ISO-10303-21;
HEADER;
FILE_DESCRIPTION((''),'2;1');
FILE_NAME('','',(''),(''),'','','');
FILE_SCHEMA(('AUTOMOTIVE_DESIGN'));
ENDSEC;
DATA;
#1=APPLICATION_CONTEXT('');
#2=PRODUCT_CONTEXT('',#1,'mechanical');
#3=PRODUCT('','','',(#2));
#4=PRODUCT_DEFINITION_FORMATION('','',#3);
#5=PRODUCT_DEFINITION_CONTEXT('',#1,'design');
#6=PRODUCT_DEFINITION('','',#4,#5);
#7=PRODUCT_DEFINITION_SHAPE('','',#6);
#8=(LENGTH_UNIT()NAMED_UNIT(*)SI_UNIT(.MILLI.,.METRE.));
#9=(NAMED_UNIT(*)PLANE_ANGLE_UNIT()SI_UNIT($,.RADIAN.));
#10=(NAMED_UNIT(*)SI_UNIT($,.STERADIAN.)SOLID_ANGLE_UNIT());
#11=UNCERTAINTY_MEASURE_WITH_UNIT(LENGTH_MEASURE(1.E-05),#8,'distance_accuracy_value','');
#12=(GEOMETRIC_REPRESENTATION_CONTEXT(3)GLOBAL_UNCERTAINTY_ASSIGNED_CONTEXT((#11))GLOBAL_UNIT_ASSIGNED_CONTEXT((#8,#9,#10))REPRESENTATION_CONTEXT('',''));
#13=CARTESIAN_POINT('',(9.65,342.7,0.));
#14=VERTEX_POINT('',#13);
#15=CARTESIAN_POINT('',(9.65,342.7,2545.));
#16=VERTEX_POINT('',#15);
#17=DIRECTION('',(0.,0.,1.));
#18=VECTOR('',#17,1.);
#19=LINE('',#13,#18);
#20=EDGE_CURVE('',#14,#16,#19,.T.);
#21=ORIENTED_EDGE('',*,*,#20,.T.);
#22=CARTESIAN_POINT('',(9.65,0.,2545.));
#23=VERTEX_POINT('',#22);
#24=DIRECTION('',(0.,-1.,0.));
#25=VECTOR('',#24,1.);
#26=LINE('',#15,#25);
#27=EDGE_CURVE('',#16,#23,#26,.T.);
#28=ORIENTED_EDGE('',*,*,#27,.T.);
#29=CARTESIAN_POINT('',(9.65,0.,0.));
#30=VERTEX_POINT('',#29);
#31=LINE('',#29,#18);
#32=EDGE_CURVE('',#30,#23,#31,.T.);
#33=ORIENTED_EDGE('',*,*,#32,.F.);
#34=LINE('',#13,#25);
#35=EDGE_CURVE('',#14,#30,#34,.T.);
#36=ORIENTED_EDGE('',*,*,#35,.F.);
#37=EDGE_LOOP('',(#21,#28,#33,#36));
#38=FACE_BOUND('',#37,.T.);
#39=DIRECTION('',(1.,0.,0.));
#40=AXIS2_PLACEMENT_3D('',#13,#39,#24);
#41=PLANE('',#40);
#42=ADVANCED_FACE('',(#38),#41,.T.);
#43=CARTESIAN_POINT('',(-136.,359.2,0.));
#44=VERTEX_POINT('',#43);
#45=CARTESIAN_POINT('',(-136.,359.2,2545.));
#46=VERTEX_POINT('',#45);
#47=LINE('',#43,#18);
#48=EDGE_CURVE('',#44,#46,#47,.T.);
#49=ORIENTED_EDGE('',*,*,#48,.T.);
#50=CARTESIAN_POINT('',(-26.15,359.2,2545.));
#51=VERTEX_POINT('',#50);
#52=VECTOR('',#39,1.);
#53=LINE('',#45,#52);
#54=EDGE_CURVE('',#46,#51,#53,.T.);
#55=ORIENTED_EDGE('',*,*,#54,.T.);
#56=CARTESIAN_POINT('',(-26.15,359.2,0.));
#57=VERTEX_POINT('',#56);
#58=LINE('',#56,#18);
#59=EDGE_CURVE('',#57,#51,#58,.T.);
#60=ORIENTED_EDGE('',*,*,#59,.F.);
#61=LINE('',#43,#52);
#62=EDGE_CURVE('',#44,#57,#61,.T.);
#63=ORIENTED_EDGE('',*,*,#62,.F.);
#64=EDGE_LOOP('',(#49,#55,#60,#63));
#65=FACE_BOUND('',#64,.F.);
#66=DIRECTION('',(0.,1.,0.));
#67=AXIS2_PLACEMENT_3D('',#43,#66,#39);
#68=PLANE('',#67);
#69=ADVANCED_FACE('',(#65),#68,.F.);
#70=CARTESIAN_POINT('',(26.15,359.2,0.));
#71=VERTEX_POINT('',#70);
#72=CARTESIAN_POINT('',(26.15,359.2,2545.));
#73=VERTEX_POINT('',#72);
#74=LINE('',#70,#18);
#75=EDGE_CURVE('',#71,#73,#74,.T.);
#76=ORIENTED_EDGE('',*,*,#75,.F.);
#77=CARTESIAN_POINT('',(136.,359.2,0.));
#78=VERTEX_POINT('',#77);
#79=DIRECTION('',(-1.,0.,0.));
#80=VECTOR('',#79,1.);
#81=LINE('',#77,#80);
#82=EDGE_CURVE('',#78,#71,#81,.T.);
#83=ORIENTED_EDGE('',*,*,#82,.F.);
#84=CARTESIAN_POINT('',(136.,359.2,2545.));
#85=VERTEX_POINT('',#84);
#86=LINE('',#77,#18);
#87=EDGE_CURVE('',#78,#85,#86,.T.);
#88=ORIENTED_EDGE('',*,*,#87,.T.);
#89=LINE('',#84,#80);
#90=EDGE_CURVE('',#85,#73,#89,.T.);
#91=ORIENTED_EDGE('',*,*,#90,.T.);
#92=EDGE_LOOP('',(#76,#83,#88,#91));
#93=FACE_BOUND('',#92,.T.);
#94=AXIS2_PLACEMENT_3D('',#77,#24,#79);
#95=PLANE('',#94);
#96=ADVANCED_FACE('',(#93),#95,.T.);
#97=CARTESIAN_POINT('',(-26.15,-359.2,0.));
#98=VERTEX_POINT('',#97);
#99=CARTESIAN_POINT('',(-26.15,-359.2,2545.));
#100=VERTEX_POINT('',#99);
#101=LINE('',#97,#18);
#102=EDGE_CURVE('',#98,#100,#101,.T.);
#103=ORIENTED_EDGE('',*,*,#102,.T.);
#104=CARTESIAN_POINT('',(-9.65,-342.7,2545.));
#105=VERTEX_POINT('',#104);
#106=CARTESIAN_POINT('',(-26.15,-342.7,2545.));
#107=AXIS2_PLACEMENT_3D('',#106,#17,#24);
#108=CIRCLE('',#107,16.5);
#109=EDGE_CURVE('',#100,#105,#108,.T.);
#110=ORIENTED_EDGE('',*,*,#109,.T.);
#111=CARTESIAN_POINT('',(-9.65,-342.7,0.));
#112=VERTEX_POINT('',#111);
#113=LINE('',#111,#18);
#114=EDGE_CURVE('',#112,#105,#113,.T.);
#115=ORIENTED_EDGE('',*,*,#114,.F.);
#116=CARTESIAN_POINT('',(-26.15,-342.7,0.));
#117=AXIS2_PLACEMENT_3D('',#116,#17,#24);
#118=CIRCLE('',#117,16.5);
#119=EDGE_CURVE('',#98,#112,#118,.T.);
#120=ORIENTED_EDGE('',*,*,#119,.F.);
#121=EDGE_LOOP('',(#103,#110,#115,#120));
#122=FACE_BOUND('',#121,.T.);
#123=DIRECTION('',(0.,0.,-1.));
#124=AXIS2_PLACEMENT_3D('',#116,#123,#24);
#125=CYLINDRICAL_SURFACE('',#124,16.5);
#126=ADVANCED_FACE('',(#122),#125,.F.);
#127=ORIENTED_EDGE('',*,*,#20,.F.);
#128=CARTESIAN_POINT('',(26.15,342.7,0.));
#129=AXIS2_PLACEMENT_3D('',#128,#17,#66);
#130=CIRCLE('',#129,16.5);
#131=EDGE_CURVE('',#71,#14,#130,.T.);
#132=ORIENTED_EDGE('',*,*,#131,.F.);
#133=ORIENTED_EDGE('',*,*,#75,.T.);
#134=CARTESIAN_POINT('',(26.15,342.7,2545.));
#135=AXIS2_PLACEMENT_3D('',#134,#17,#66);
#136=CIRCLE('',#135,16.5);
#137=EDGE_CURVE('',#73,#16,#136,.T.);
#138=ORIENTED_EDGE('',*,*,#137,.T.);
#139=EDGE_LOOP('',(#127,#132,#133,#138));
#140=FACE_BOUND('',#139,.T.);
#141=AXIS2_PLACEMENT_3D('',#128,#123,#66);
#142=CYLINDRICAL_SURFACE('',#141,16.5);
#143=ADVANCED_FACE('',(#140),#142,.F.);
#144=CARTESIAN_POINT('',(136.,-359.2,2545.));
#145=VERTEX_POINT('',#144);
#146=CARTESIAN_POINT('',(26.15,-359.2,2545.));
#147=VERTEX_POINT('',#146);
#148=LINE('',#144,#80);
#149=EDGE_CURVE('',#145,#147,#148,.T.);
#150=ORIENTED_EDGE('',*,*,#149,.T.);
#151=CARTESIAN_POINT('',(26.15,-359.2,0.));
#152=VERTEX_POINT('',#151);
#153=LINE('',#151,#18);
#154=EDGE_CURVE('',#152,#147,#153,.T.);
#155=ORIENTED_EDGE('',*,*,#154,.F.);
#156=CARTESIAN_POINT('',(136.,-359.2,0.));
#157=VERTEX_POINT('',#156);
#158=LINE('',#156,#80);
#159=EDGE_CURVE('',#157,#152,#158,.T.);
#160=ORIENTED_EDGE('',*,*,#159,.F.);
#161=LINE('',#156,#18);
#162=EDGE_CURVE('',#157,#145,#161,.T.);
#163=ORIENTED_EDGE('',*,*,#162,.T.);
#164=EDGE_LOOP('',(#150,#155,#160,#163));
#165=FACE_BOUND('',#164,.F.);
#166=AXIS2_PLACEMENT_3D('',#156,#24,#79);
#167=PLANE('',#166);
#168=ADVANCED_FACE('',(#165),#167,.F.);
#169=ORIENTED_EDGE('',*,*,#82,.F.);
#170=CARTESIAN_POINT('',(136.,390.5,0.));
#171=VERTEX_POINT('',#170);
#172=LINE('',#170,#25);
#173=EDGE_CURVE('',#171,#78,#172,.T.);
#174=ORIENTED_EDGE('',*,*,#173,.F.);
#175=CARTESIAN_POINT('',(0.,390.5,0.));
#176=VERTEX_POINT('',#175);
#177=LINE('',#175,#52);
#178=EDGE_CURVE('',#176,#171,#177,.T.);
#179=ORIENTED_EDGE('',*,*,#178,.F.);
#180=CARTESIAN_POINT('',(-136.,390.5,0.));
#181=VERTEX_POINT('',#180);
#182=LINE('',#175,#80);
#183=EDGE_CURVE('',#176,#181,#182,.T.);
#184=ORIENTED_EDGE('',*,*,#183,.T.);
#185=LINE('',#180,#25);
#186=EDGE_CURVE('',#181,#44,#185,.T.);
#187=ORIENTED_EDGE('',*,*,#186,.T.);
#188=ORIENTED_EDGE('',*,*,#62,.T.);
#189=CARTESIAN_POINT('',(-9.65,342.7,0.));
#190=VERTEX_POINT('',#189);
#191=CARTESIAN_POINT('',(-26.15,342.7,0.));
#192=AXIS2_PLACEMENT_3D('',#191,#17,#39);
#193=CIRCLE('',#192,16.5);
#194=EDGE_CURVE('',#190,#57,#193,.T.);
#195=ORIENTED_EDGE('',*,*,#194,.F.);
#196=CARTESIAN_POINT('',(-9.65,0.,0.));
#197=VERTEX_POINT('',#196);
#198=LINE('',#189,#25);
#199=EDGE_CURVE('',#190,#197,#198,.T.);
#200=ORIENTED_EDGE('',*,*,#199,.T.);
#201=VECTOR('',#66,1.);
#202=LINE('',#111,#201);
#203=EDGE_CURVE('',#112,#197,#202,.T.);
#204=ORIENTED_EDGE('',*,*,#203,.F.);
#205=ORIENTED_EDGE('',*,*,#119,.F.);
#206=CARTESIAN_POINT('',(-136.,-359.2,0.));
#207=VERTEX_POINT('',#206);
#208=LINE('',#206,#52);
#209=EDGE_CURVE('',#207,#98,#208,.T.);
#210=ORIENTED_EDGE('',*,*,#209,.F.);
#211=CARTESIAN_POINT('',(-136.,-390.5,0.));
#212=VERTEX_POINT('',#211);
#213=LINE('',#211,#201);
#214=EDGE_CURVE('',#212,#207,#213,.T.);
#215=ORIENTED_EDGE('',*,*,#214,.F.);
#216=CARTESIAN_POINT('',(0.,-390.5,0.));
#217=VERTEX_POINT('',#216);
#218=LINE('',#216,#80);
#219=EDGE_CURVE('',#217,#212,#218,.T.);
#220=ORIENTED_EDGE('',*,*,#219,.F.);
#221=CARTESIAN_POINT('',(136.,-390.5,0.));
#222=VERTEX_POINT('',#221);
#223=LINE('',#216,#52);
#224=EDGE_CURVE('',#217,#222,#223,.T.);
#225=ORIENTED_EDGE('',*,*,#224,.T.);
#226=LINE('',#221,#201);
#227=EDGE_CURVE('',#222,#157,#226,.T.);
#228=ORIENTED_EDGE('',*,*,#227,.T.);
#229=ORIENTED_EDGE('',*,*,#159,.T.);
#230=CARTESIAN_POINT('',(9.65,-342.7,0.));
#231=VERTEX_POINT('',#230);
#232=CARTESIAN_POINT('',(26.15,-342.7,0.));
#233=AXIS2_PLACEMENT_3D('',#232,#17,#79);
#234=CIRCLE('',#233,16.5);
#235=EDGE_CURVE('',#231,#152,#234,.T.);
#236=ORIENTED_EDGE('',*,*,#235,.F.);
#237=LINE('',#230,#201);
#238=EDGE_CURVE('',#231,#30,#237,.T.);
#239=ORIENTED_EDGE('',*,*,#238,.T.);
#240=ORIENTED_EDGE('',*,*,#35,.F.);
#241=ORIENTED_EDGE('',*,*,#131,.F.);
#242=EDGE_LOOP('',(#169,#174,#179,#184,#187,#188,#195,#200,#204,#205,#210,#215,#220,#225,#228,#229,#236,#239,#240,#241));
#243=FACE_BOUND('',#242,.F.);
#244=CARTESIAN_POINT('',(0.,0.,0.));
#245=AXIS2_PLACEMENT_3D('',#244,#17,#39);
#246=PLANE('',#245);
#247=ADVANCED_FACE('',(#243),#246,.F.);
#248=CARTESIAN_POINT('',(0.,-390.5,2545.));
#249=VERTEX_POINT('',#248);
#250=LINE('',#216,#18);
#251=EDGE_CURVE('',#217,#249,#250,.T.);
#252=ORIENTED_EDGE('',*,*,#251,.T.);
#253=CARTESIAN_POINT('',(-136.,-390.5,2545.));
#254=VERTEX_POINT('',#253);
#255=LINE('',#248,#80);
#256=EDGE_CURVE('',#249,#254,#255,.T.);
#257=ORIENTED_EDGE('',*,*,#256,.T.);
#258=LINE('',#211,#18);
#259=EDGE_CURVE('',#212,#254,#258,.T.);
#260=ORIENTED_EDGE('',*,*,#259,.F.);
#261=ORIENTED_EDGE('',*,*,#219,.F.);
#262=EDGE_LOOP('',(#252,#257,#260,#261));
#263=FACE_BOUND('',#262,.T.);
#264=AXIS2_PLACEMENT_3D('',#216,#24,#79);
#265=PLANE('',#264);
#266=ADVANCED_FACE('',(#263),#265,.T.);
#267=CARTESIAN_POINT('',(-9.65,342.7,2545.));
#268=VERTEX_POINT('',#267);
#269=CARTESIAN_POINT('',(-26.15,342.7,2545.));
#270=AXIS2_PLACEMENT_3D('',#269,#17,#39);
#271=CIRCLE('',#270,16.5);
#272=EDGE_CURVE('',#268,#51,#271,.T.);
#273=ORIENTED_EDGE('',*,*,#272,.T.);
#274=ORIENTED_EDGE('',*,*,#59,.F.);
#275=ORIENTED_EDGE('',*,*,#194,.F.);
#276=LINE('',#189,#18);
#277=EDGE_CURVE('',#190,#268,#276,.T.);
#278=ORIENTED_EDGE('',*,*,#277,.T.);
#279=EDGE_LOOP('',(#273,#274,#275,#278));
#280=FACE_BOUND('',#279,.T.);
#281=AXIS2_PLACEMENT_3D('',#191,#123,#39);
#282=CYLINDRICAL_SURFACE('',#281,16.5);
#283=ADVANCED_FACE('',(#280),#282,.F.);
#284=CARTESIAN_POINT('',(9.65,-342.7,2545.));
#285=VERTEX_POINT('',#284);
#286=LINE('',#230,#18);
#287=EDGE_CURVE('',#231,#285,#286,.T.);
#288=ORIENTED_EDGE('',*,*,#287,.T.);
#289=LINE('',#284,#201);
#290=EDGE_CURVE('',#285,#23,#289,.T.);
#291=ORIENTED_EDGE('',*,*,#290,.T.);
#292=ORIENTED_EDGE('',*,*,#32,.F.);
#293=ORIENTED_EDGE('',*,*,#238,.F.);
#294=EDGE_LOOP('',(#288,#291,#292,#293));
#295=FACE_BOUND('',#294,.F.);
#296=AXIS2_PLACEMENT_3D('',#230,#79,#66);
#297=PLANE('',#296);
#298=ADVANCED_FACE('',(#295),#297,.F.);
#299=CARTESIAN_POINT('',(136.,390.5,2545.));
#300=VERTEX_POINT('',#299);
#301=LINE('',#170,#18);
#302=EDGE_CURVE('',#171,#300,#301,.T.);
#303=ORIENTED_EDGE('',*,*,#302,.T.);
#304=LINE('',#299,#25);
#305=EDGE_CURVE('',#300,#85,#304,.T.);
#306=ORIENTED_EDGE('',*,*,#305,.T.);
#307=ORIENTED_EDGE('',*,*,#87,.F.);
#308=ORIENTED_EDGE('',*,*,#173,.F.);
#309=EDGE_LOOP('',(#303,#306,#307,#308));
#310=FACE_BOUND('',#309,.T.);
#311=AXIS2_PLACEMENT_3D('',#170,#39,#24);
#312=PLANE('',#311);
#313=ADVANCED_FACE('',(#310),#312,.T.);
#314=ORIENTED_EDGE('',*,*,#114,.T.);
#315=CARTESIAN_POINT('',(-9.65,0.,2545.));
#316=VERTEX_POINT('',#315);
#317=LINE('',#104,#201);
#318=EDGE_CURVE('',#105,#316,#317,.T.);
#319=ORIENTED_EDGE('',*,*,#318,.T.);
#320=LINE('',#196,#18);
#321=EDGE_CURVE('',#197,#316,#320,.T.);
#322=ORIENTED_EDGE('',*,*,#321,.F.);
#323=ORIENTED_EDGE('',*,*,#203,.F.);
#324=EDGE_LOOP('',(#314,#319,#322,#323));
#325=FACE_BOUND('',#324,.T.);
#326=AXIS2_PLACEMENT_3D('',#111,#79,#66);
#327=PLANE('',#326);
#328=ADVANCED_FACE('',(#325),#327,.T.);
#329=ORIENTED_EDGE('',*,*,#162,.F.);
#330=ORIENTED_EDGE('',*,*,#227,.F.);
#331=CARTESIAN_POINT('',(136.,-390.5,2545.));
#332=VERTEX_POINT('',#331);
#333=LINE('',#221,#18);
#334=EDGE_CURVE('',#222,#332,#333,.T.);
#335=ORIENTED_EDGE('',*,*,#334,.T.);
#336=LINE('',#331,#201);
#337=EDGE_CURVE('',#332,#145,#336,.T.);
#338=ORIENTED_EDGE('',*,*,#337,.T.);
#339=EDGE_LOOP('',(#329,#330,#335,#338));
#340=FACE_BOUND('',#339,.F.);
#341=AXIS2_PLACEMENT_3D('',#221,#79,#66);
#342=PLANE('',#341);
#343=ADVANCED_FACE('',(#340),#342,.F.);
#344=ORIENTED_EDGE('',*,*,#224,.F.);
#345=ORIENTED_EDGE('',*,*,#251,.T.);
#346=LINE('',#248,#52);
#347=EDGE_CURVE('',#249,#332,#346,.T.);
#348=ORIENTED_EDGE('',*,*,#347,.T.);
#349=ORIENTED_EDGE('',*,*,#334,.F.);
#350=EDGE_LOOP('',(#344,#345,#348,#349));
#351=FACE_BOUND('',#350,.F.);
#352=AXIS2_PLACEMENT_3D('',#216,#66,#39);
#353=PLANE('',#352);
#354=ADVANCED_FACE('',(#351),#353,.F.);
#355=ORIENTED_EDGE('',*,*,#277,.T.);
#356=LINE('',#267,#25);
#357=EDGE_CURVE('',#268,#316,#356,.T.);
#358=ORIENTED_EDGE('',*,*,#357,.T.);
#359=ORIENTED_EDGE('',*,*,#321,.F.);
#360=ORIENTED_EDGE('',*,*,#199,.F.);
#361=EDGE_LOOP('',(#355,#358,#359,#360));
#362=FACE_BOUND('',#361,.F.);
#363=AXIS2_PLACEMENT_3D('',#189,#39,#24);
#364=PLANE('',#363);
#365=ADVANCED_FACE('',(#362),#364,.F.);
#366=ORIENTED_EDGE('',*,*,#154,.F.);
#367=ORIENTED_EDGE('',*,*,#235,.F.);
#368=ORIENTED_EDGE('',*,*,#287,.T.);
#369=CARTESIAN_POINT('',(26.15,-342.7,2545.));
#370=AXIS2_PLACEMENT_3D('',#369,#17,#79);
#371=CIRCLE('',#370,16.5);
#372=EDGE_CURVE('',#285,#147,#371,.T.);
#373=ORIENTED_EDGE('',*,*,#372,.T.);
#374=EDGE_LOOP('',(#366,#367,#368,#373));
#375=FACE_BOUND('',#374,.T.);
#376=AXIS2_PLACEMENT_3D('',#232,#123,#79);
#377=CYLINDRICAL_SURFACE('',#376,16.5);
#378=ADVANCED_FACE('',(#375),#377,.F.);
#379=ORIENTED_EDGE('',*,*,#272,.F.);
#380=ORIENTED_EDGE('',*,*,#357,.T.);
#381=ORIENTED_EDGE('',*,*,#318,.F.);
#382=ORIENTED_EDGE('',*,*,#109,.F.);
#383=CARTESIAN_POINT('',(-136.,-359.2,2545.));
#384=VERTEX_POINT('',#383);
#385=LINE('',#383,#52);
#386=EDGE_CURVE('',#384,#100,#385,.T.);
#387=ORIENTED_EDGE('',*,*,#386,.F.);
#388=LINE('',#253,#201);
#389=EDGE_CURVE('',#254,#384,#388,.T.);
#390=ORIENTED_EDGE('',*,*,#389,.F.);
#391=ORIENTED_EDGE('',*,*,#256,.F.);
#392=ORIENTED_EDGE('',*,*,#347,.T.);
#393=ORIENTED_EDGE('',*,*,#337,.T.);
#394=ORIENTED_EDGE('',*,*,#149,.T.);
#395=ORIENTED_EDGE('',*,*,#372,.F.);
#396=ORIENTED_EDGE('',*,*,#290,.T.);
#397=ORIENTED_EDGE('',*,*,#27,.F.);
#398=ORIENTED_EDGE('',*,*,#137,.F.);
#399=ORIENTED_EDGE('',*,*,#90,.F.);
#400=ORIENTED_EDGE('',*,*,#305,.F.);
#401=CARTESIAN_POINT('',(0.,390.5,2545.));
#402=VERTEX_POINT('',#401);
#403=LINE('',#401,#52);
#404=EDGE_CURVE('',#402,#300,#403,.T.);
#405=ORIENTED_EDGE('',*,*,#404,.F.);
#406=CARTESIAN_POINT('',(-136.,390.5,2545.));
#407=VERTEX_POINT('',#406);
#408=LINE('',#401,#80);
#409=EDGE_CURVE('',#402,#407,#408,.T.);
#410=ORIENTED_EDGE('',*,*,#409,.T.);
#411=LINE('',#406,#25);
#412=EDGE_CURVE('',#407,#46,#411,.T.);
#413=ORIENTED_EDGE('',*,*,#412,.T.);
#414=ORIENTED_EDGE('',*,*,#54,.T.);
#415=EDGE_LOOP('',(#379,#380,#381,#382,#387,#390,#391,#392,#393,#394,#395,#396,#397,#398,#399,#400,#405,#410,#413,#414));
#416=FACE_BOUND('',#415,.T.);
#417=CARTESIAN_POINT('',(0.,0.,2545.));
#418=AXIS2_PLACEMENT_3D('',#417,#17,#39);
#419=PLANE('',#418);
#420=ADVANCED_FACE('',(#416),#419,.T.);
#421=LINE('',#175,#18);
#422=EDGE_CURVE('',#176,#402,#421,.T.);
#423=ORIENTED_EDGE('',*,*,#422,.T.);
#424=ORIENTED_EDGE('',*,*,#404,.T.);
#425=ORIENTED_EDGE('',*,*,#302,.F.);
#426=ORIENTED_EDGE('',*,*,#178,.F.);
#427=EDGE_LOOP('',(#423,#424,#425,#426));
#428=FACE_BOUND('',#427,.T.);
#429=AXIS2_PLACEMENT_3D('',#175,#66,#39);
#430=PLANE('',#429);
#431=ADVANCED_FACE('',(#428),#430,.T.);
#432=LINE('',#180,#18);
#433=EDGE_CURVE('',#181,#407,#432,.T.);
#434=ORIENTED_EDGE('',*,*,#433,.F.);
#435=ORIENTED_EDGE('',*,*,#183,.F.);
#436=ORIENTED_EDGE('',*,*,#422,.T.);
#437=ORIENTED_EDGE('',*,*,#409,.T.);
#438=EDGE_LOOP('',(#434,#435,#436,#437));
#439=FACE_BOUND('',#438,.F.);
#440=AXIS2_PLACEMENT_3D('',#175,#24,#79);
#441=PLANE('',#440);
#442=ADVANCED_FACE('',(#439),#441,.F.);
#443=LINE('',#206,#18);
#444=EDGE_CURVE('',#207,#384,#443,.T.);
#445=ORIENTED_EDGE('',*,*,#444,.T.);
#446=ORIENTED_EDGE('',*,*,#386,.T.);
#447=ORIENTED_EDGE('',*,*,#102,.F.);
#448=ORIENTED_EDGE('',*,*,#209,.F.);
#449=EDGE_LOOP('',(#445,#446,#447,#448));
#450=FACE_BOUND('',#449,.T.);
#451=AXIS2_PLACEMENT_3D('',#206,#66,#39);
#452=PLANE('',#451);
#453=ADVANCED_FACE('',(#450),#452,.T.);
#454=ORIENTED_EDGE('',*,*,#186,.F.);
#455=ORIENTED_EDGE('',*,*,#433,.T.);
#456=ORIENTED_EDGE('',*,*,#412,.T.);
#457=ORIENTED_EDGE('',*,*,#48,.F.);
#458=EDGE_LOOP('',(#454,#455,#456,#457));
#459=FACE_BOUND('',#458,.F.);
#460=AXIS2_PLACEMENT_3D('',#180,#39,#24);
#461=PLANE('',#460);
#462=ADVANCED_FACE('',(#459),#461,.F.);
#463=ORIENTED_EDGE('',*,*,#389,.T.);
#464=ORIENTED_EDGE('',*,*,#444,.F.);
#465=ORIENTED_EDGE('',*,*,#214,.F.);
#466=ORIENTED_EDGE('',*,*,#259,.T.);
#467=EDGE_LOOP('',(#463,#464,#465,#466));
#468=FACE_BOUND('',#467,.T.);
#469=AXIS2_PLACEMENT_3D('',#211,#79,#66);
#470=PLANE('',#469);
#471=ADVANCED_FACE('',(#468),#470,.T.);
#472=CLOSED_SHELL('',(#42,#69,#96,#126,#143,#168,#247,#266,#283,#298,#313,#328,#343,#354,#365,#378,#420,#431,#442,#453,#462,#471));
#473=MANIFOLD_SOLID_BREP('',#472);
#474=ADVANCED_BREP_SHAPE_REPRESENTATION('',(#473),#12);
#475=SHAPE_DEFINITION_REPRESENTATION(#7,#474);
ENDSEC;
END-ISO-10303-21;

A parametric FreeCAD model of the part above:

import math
import FreeCAD as App
import Part
import Sketcher

V = App.Vector
Q = App.Units.Quantity

doc = App.newDocument("Part")
body = doc.addObject("PartDesign::Body", "Body")

# Sketch on XY plane
sketch1 = body.newObject("Sketcher::SketchObject", "Sketch")
sketch1.AttachmentSupport = (doc.getObject("XY_Plane"), [""])
sketch1.MapMode = "FlatFace"
sketch1.addGeometry(Part.LineSegment(V(-136, -359, 0), V(-136, -390, 0)), False)
sketch1.addGeometry(Part.LineSegment(V(-136, -390, 0), V(136, -390, 0)), False)
sketch1.addGeometry(Part.LineSegment(V(136, -390, 0), V(136, -359, 0)), False)
sketch1.addGeometry(Part.LineSegment(V(136, -359, 0), V(26, -359, 0)), False)
sketch1.addGeometry(Part.ArcOfCircle(Part.Circle(V(26, -343, 0), V(0, 0, 1), 16), math.radians(180), math.radians(270)), False)
sketch1.addGeometry(Part.LineSegment(V(10, -343, 0), V(10, 343, 0)), False)
sketch1.addGeometry(Part.ArcOfCircle(Part.Circle(V(26, 343, 0), V(0, 0, 1), 16), math.radians(90), math.radians(180)), False)
sketch1.addGeometry(Part.LineSegment(V(26, 359, 0), V(136, 359, 0)), False)
sketch1.addGeometry(Part.LineSegment(V(136, 359, 0), V(136, 390, 0)), False)
sketch1.addGeometry(Part.LineSegment(V(136, 390, 0), V(-136, 390, 0)), False)
sketch1.addGeometry(Part.LineSegment(V(-136, 390, 0), V(-136, 359, 0)), False)
sketch1.addGeometry(Part.LineSegment(V(-136, 359, 0), V(-26, 359, 0)), False)
sketch1.addGeometry(Part.ArcOfCircle(Part.Circle(V(-26, 343, 0), V(0, 0, 1), 16), math.radians(0), math.radians(90)), False)
sketch1.addGeometry(Part.LineSegment(V(-10, 343, 0), V(-10, -343, 0)), False)
sketch1.addGeometry(Part.ArcOfCircle(Part.Circle(V(-26, -343, 0), V(0, 0, 1), 16), math.radians(-90), math.radians(0)), False)
sketch1.addGeometry(Part.LineSegment(V(-26, -359, 0), V(-136, -359, 0)), False)
sketch1.addConstraint(Sketcher.Constraint("Coincident", 0, 2, 1, 1))
sketch1.addConstraint(Sketcher.Constraint("Coincident", 1, 2, 2, 1))
sketch1.addConstraint(Sketcher.Constraint("Coincident", 2, 2, 3, 1))
sketch1.addConstraint(Sketcher.Constraint("Tangent", 3, 2, 4, 2))
sketch1.addConstraint(Sketcher.Constraint("Tangent", 4, 1, 5, 1))
sketch1.addConstraint(Sketcher.Constraint("Tangent", 5, 2, 6, 2))
sketch1.addConstraint(Sketcher.Constraint("Tangent", 6, 1, 7, 1))
sketch1.addConstraint(Sketcher.Constraint("Coincident", 7, 2, 8, 1))
sketch1.addConstraint(Sketcher.Constraint("Coincident", 8, 2, 9, 1))
sketch1.addConstraint(Sketcher.Constraint("Coincident", 9, 2, 10, 1))
sketch1.addConstraint(Sketcher.Constraint("Coincident", 10, 2, 11, 1))
sketch1.addConstraint(Sketcher.Constraint("Tangent", 11, 2, 12, 2))
sketch1.addConstraint(Sketcher.Constraint("Tangent", 12, 1, 13, 1))
sketch1.addConstraint(Sketcher.Constraint("Tangent", 13, 2, 14, 2))
sketch1.addConstraint(Sketcher.Constraint("Tangent", 14, 1, 15, 1))
sketch1.addConstraint(Sketcher.Constraint("Coincident", 15, 2, 0, 1))
sketch1.addConstraint(Sketcher.Constraint("Vertical", 0))
sketch1.addConstraint(Sketcher.Constraint("Horizontal", 1))
sketch1.addConstraint(Sketcher.Constraint("Vertical", 2))
sketch1.addConstraint(Sketcher.Constraint("Horizontal", 3))
sketch1.addConstraint(Sketcher.Constraint("Vertical", 5))
sketch1.addConstraint(Sketcher.Constraint("Horizontal", 7))
sketch1.addConstraint(Sketcher.Constraint("Vertical", 8))
sketch1.addConstraint(Sketcher.Constraint("Horizontal", 9))
sketch1.addConstraint(Sketcher.Constraint("Vertical", 10))
sketch1.addConstraint(Sketcher.Constraint("Horizontal", 11))
sketch1.addConstraint(Sketcher.Constraint("Vertical", 13))
sketch1.addConstraint(Sketcher.Constraint("Horizontal", 15))
sketch1.addConstraint(Sketcher.Constraint("Equal", 4, 6))
sketch1.addConstraint(Sketcher.Constraint("Equal", 6, 12))
sketch1.addConstraint(Sketcher.Constraint("Equal", 12, 14))
sketch1.addConstraint(Sketcher.Constraint("Symmetric", 4, 3, 12, 3, -1, 1))
sketch1.addConstraint(Sketcher.Constraint("Symmetric", 0, 2, 8, 2, -1, 1))
sketch1.addConstraint(Sketcher.Constraint("Symmetric", 7, 2, 10, 2, -2))
sketch1.addConstraint(Sketcher.Constraint("Symmetric", 2, 2, 15, 2, -2))
sketch1.addConstraint(Sketcher.Constraint("Radius", 4, Q("16.5 mm")))
sketch1.addConstraint(Sketcher.Constraint("DistanceY", 0, 2, 0, 1, Q("31.3 mm")))
sketch1.addConstraint(Sketcher.Constraint("DistanceX", 0, 2, -1, 1, Q("136 mm")))
sketch1.addConstraint(Sketcher.Constraint("DistanceY", 0, 2, -1, 1, Q("390.5 mm")))
sketch1.addConstraint(Sketcher.Constraint("DistanceX", -1, 1, 4, 1, Q("9.65 mm")))
pad1 = body.newObject("PartDesign::Pad", "Pad")
pad1.Profile = sketch1
pad1.Length = 2545

doc.recompute()
